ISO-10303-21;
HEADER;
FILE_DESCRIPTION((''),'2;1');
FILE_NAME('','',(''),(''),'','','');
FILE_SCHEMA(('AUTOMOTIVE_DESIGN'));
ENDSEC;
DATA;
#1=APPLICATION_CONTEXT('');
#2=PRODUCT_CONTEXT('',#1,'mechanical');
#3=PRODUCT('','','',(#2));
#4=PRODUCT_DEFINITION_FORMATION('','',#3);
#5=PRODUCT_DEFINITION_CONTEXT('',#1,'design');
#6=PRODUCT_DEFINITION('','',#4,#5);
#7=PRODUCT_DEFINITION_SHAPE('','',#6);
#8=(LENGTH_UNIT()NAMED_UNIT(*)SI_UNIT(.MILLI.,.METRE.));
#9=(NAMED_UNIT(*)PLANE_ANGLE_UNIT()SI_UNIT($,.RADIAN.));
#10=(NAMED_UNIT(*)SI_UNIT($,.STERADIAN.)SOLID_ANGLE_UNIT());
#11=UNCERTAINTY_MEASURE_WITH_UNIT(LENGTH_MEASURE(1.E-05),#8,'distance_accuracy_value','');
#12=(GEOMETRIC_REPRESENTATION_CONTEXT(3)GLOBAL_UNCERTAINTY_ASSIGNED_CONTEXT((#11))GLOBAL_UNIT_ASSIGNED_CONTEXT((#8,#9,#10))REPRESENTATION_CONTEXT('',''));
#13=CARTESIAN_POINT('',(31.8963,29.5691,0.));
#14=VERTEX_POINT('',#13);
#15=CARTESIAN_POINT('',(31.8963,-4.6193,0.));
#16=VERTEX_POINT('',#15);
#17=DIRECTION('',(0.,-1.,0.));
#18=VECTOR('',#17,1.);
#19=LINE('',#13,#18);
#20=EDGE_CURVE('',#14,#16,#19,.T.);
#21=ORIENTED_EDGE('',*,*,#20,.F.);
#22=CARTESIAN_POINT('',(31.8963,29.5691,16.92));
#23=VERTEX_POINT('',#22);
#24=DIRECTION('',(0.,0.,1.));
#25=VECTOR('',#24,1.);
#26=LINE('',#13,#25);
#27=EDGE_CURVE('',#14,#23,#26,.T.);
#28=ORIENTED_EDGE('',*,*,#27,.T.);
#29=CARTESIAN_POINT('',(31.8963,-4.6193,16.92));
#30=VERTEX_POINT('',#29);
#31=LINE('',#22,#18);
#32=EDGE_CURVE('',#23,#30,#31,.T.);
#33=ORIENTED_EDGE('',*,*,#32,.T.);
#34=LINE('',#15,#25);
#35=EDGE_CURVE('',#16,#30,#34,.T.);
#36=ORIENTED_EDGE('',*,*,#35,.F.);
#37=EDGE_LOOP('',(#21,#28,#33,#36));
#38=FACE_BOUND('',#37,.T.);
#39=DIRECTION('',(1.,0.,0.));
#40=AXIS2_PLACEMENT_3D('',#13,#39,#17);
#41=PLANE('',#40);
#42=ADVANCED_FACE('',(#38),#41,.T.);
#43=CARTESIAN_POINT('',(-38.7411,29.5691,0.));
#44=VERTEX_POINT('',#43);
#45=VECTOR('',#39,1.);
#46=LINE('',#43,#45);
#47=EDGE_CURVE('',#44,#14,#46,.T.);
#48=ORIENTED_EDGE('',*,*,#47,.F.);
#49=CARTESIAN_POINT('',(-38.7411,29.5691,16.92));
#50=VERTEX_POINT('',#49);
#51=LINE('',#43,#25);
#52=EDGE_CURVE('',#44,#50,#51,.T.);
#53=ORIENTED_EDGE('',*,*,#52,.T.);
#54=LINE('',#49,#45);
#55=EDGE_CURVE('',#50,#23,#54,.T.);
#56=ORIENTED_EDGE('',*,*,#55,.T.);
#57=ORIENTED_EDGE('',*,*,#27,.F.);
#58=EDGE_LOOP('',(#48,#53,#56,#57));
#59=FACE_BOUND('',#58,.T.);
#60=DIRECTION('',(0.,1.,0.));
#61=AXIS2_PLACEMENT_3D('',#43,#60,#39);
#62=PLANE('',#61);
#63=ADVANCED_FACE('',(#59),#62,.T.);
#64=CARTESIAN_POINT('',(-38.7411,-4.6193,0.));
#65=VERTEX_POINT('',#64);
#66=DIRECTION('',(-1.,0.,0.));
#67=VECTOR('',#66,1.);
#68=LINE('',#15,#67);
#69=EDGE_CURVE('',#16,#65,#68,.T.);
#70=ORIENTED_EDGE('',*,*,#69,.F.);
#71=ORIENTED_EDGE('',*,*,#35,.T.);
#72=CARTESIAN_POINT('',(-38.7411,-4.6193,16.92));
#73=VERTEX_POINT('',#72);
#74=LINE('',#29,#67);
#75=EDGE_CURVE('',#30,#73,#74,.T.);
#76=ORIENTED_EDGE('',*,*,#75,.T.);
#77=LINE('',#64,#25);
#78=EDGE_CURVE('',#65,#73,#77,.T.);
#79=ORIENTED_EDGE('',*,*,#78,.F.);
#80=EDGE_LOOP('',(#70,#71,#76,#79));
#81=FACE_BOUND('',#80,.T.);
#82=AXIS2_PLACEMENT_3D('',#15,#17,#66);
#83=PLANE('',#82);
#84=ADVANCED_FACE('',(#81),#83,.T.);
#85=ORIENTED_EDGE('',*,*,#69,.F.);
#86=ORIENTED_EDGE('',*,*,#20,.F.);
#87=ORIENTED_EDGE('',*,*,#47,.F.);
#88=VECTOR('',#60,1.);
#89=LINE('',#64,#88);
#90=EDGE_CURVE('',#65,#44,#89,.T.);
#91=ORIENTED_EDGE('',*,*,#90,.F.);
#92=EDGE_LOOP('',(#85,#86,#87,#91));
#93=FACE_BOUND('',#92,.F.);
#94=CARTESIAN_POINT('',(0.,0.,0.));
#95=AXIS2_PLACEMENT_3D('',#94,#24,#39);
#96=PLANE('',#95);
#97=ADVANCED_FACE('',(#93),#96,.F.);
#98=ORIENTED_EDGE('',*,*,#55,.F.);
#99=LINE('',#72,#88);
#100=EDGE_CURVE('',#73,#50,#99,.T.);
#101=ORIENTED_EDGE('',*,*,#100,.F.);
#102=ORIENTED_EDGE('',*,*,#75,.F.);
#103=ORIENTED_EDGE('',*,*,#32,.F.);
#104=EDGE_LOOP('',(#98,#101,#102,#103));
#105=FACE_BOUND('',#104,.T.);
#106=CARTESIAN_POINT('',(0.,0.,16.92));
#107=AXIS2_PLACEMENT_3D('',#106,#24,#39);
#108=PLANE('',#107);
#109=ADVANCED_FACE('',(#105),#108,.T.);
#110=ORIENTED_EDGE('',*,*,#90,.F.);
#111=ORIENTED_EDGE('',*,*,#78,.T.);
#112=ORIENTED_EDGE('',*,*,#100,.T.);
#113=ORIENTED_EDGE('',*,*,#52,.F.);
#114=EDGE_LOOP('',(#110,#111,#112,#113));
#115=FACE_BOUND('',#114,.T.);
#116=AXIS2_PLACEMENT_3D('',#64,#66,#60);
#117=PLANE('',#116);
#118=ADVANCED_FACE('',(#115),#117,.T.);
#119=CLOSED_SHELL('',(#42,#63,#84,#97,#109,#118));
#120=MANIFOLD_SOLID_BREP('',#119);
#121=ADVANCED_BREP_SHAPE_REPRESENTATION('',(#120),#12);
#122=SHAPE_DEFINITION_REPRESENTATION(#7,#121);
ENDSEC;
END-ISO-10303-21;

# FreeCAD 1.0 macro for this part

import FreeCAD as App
import Part
import Sketcher
from FreeCAD import Vector
Q = App.Units.Quantity

doc = App.newDocument("Part")
body = doc.addObject("PartDesign::Body", "Body")

# Sketch on XY plane
sketch1 = body.newObject("Sketcher::SketchObject", "Sketch")
sketch1.AttachmentSupport = (doc.getObject("XY_Plane"), [""])
sketch1.MapMode = "FlatFace"
sketch1.addGeometry([
    Part.LineSegment(Vector(32, 30, 0), Vector(-39, 30, 0)),
    Part.LineSegment(Vector(-39, 30, 0), Vector(-39, -5, 0)),
    Part.LineSegment(Vector(-39, -5, 0), Vector(32, -5, 0)),
    Part.LineSegment(Vector(32, -5, 0), Vector(32, 30, 0)),
], False)
sketch1.addConstraint([
    Sketcher.Constraint("Coincident", 0, 2, 1, 1),
    Sketcher.Constraint("Coincident", 1, 2, 2, 1),
    Sketcher.Constraint("Coincident", 2, 2, 3, 1),
    Sketcher.Constraint("Coincident", 3, 2, 0, 1),
    Sketcher.Constraint("Horizontal", 0),
    Sketcher.Constraint("Vertical", 1),
    Sketcher.Constraint("Horizontal", 2),
    Sketcher.Constraint("Vertical", 3),
    Sketcher.Constraint("DistanceX", 0, 2, 0, 1, Q("2.781 in")),
    Sketcher.Constraint("DistanceY", 1, 2, 1, 1, Q("1.346 in")),
    Sketcher.Constraint("DistanceX", 0, 2, -1, 1, Q("38.741 mm")),
    Sketcher.Constraint("DistanceY", -1, 1, 0, 2, Q("29.569 mm")),
])
pad1 = body.newObject("PartDesign::Pad", "Pad")
pad1.Profile = sketch1
pad1.Length = 16.92

doc.recompute()
